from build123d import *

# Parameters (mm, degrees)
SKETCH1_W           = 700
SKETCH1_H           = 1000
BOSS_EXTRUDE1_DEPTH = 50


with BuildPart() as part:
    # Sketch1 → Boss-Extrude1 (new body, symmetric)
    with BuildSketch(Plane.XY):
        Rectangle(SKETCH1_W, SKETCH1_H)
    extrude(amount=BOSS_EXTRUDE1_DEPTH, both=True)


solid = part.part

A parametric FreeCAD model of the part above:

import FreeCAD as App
import Part
import Sketcher

V = App.Vector

doc = App.newDocument("Part")
body = doc.addObject("PartDesign::Body", "Body")

# Sketch on XY plane
sketch1 = body.newObject("Sketcher::SketchObject", "Sketch")
sketch1.AttachmentSupport = (doc.getObject("XY_Plane"), [""])
sketch1.MapMode = "FlatFace"
sketch1.addGeometry(Part.LineSegment(V(-350, 500, 0), V(-350, -500, 0)), False)
sketch1.addGeometry(Part.LineSegment(V(-350, -500, 0), V(350, -500, 0)), False)
sketch1.addGeometry(Part.LineSegment(V(350, -500, 0), V(350, 500, 0)), False)
sketch1.addGeometry(Part.LineSegment(V(350, 500, 0), V(-350, 500, 0)), False)
sketch1.addConstraint(Sketcher.Constraint("Coincident", 0, 2, 1, 1))
sketch1.addConstraint(Sketcher.Constraint("Coincident", 1, 2, 2, 1))
sketch1.addConstraint(Sketcher.Constraint("Coincident", 2, 2, 3, 1))
sketch1.addConstraint(Sketcher.Constraint("Coincident", 3, 2, 0, 1))
sketch1.addConstraint(Sketcher.Constraint("Vertical", 0))
sketch1.addConstraint(Sketcher.Constraint("Horizontal", 1))
sketch1.addConstraint(Sketcher.Constraint("Vertical", 2))
sketch1.addConstraint(Sketcher.Constraint("Horizontal", 3))
sketch1.addConstraint(Sketcher.Constraint("Symmetric", 0, 2, 2, 2, -1, 1))
sketch1.addConstraint(Sketcher.Constraint("DistanceX", 1, 1, 1, 2, 700.0))
sketch1.addConstraint(Sketcher.Constraint("DistanceY", 0, 2, 0, 1, 1000.0))
pad1 = body.newObject("PartDesign::Pad", "Pad")
pad1.Profile = sketch1
pad1.Length = 100
pad1.Midplane = True

doc.recompute()
